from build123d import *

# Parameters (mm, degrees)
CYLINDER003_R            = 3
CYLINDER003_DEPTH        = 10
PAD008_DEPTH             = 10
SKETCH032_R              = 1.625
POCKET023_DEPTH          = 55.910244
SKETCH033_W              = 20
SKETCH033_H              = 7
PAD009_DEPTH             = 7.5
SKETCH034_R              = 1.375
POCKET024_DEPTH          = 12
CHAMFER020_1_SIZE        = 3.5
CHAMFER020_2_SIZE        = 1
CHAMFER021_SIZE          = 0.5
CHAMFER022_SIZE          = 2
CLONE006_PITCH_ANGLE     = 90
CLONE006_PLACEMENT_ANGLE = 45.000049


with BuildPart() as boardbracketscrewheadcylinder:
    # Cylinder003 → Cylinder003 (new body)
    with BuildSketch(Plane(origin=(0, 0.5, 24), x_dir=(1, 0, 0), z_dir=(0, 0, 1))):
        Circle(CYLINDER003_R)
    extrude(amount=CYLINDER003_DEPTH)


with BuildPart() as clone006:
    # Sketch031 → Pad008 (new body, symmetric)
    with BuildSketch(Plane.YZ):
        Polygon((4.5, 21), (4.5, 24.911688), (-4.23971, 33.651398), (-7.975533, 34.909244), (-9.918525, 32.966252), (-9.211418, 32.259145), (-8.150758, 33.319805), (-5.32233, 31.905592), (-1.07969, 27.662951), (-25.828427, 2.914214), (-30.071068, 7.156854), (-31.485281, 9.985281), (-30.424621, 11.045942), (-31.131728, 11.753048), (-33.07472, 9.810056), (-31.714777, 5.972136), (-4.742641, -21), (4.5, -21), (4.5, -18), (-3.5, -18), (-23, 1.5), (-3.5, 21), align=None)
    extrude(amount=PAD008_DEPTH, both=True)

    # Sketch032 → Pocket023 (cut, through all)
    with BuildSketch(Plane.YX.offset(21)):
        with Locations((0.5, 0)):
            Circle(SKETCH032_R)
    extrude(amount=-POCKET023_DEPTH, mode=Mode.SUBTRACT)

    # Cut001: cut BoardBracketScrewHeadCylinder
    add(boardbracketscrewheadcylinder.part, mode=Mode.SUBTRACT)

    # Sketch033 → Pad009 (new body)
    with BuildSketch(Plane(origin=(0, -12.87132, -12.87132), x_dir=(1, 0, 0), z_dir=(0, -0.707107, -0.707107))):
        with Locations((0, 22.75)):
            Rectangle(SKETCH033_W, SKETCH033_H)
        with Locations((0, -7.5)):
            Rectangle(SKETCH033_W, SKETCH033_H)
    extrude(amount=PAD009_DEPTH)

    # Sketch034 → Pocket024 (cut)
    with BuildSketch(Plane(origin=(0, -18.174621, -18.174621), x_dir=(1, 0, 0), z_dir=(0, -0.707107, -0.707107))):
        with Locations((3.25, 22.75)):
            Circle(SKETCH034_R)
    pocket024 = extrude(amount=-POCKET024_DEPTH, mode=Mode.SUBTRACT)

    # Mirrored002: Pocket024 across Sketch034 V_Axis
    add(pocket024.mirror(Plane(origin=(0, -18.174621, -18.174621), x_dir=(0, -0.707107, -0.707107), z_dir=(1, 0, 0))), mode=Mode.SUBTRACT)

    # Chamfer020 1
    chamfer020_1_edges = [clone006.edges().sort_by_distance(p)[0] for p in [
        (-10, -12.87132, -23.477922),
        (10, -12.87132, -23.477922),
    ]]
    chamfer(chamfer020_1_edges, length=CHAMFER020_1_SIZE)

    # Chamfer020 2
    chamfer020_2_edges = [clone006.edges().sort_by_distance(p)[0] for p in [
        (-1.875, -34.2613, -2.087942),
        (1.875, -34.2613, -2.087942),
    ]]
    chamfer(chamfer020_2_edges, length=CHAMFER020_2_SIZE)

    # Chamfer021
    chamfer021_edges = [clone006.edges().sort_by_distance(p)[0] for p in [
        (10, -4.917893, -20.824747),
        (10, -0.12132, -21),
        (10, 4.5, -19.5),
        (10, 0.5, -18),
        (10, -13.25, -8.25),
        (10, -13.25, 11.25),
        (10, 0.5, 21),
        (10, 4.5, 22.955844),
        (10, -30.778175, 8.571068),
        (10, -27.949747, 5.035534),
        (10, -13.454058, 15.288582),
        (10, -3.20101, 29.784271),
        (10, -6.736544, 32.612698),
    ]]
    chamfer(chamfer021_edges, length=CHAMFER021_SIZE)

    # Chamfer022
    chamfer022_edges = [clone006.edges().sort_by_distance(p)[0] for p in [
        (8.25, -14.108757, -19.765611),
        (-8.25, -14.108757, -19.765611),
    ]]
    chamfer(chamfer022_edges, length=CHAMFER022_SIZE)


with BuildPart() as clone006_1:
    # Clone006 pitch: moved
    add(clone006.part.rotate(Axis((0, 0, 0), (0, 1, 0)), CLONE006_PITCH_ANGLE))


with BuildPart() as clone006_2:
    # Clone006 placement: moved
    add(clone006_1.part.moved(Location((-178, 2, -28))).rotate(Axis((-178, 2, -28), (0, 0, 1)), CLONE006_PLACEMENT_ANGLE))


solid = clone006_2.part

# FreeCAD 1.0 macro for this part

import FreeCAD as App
import Part
import Sketcher
from FreeCAD import Vector


def edges_at(feature, points):
    """Names of the edges that pass closest to the given points."""
    edges = feature.Shape.Edges
    near = lambda p: min(range(len(edges)), key=lambda i: edges[i].distToShape(Part.Vertex(*p))[0])
    return sorted({f"Edge{near(p) + 1}" for p in points})

doc = App.newDocument("Part")
body = doc.addObject("PartDesign::Body", "Body")

# Sketch on XY plane
sketch1 = body.newObject("Sketcher::SketchObject", "Sketch")
sketch1.AttachmentSupport = (doc.getObject("XY_Plane"), [""])
sketch1.MapMode = "FlatFace"
sketch1.AttachmentOffset = App.Placement(Vector(0, 0, 24), App.Rotation())
sketch1.addGeometry(Part.Circle(Vector(0, 0.5, 0), Vector(0, 0, 1), 3), False)
sketch1.addConstraint(Sketcher.Constraint("PointOnObject", 0, 3, -2))
sketch1.addConstraint(Sketcher.Constraint("Diameter", 0, 6.0))
sketch1.addConstraint(Sketcher.Constraint("DistanceY", -1, 1, 0, 3, 0.5))
pad1 = body.newObject("PartDesign::Pad", "Pad")
pad1.Profile = sketch1
pad1.Length = 10
body2 = doc.addObject("PartDesign::Body", "Body001")

# Sketch on YZ plane
sketch2 = body2.newObject("Sketcher::SketchObject", "Sketch001")
sketch2.AttachmentSupport = (doc.getObject("YZ_Plane001"), [""])
sketch2.MapMode = "FlatFace"
sketch2.addGeometry(Part.LineSegment(Vector(4.5, 21, 0), Vector(4.5, 24.9, 0)), False)
sketch2.addGeometry(Part.LineSegment(Vector(4.5, 24.9, 0), Vector(-4.2, 33.7, 0)), False)
sketch2.addGeometry(Part.LineSegment(Vector(-4.2, 33.7, 0), Vector(-8, 34.9, 0)), False)
sketch2.addGeometry(Part.LineSegment(Vector(-8, 34.9, 0), Vector(-9.9, 33, 0)), False)
sketch2.addGeometry(Part.LineSegment(Vector(-9.9, 33, 0), Vector(-9.2, 32.3, 0)), False)
sketch2.addGeometry(Part.LineSegment(Vector(-9.2, 32.3, 0), Vector(-8.2, 33.3, 0)), False)
sketch2.addGeometry(Part.LineSegment(Vector(-8.2, 33.3, 0), Vector(-5.3, 31.9, 0)), False)
sketch2.addGeometry(Part.LineSegment(Vector(-5.3, 31.9, 0), Vector(-1.1, 27.7, 0)), False)
sketch2.addGeometry(Part.LineSegment(Vector(-1.1, 27.7, 0), Vector(-25.8, 2.9, 0)), False)
sketch2.addGeometry(Part.LineSegment(Vector(-25.8, 2.9, 0), Vector(-30.1, 7.2, 0)), False)
sketch2.addGeometry(Part.LineSegment(Vector(-30.1, 7.2, 0), Vector(-31.5, 10, 0)), False)
sketch2.addGeometry(Part.LineSegment(Vector(-31.5, 10, 0), Vector(-30.4, 11, 0)), False)
sketch2.addGeometry(Part.LineSegment(Vector(-30.4, 11, 0), Vector(-31.1, 11.8, 0)), False)
sketch2.addGeometry(Part.LineSegment(Vector(-31.1, 11.8, 0), Vector(-33.1, 9.8, 0)), False)
sketch2.addGeometry(Part.LineSegment(Vector(-33.1, 9.8, 0), Vector(-31.7, 6, 0)), False)
sketch2.addGeometry(Part.LineSegment(Vector(-31.7, 6, 0), Vector(-4.7, -21, 0)), False)
sketch2.addGeometry(Part.LineSegment(Vector(-4.7, -21, 0), Vector(4.5, -21, 0)), False)
sketch2.addGeometry(Part.LineSegment(Vector(4.5, -21, 0), Vector(4.5, -18, 0)), False)
sketch2.addGeometry(Part.LineSegment(Vector(4.5, -18, 0), Vector(-3.5, -18, 0)), False)
sketch2.addGeometry(Part.LineSegment(Vector(-3.5, -18, 0), Vector(-23, 1.5, 0)), False)
sketch2.addGeometry(Part.LineSegment(Vector(-23, 1.5, 0), Vector(-3.5, 21, 0)), False)
sketch2.addGeometry(Part.LineSegment(Vector(-3.5, 21, 0), Vector(4.5, 21, 0)), False)
sketch2.addConstraint(Sketcher.Constraint("Coincident", 0, 2, 1, 1))
sketch2.addConstraint(Sketcher.Constraint("Coincident", 1, 2, 2, 1))
sketch2.addConstraint(Sketcher.Constraint("Coincident", 2, 2, 3, 1))
sketch2.addConstraint(Sketcher.Constraint("Coincident", 3, 2, 4, 1))
sketch2.addConstraint(Sketcher.Constraint("Coincident", 4, 2, 5, 1))
sketch2.addConstraint(Sketcher.Constraint("Coincident", 5, 2, 6, 1))
sketch2.addConstraint(Sketcher.Constraint("Coincident", 6, 2, 7, 1))
sketch2.addConstraint(Sketcher.Constraint("Coincident", 7, 2, 8, 1))
sketch2.addConstraint(Sketcher.Constraint("Coincident", 8, 2, 9, 1))
sketch2.addConstraint(Sketcher.Constraint("Coincident", 9, 2, 10, 1))
sketch2.addConstraint(Sketcher.Constraint("Coincident", 10, 2, 11, 1))
sketch2.addConstraint(Sketcher.Constraint("Coincident", 11, 2, 12, 1))
sketch2.addConstraint(Sketcher.Constraint("Coincident", 12, 2, 13, 1))
sketch2.addConstraint(Sketcher.Constraint("Coincident", 13, 2, 14, 1))
sketch2.addConstraint(Sketcher.Constraint("Coincident", 14, 2, 15, 1))
sketch2.addConstraint(Sketcher.Constraint("Coincident", 15, 2, 16, 1))
sketch2.addConstraint(Sketcher.Constraint("Coincident", 16, 2, 17, 1))
sketch2.addConstraint(Sketcher.Constraint("Coincident", 17, 2, 18, 1))
sketch2.addConstraint(Sketcher.Constraint("Coincident", 18, 2, 19, 1))
sketch2.addConstraint(Sketcher.Constraint("Coincident", 19, 2, 20, 1))
sketch2.addConstraint(Sketcher.Constraint("Coincident", 20, 2, 21, 1))
sketch2.addConstraint(Sketcher.Constraint("Coincident", 21, 2, 0, 1))
sketch2.addConstraint(Sketcher.Constraint("Vertical", 0))
sketch2.addConstraint(Sketcher.Constraint("Horizontal", 16))
sketch2.addConstraint(Sketcher.Constraint("Vertical", 17))
sketch2.addConstraint(Sketcher.Constraint("Horizontal", 18))
sketch2.addConstraint(Sketcher.Constraint("Horizontal", 21))
sketch2.addConstraint(Sketcher.Constraint("Symmetric", 16, 2, 21, 2, -1))
sketch2.addConstraint(Sketcher.Constraint("Perpendicular", 1, 3))
sketch2.addConstraint(Sketcher.Constraint("Perpendicular", 3, 4))
sketch2.addConstraint(Sketcher.Constraint("Perpendicular", 4, 5))
sketch2.addConstraint(Sketcher.Constraint("Perpendicular", 5, 7))
sketch2.addConstraint(Sketcher.Constraint("Perpendicular", 7, 8))
sketch2.addConstraint(Sketcher.Constraint("Perpendicular", 8, 9))
sketch2.addConstraint(Sketcher.Constraint("Perpendicular", 9, 11))
sketch2.addConstraint(Sketcher.Constraint("Perpendicular", 11, 12))
sketch2.addConstraint(Sketcher.Constraint("Perpendicular", 12, 13))
sketch2.addConstraint(Sketcher.Constraint("Perpendicular", 13, 15))
sketch2.addConstraint(Sketcher.Constraint("Parallel", 15, 19))
sketch2.addConstraint(Sketcher.Constraint("Perpendicular", 19, 20))
sketch2.addConstraint(Sketcher.Constraint("Vertical", 18, 2, 20, 2))
sketch2.addConstraint(Sketcher.Constraint("Equal", 7, 9))
sketch2.addConstraint(Sketcher.Constraint("Equal", 6, 10))
sketch2.addConstraint(Sketcher.Constraint("Equal", 5, 11))
sketch2.addConstraint(Sketcher.Constraint("Equal", 4, 12))
sketch2.addConstraint(Sketcher.Constraint("Equal", 3, 13))
sketch2.addConstraint(Sketcher.Constraint("Equal", 19, 20))
sketch2.addConstraint(Sketcher.Constraint("DistanceX", 18, 2, 18, 1, 8.0))
sketch2.addConstraint(Sketcher.Constraint("DistanceY", 17, 1, 17, 2, 3.0))
sketch2.addConstraint(Sketcher.Constraint("Distance", 4, 1.0))
sketch2.addConstraint(Sketcher.Constraint("Distance", 7, 6.0))
sketch2.addConstraint(Sketcher.Constraint("Distance", 8, 35.0))
sketch2.addConstraint(Sketcher.Constraint("DistanceY", 15, 2, -1, 1, 21.0))
sketch2.addConstraint(Sketcher.Constraint("DistanceX", 19, 2, -1, 1, 23.0))
sketch2.addConstraint(Sketcher.Constraint("Distance", 5, 1.5))
sketch2.addConstraint(Sketcher.Constraint("DistanceX", 16, 1, 16, 2, 9.242641))
sketch2.addConstraint(Sketcher.Constraint("DistanceY", 0, 1, 0, 2, 3.911688))
sketch2.addConstraint(Sketcher.Constraint("DistanceY", 4, 2, 2, 2, 2.650099))
sketch2.addConstraint(Sketcher.Constraint("DistanceX", 12, 2, 8, 2, 5.303301))
sketch2.addConstraint(Sketcher.Constraint("DistanceY", 9, 2, 13, 2, 2.653202))
sketch2.addConstraint(Sketcher.Constraint("Distance", 14, 4.071741))
sketch2.addConstraint(Sketcher.Constraint("Distance", 15, 38.144361))
sketch2.addConstraint(Sketcher.Constraint("DistanceX", 1, 2, -1, 1, 4.23971))
sketch2.addConstraint(Sketcher.Constraint("DistanceY", -1, 1, 3, 2, 32.966252))
sketch2.addConstraint(Sketcher.Constraint("DistanceX", 6, 2, -1, 1, 5.32233))
pad2 = body2.newObject("PartDesign::Pad", "Pad001")
pad2.Profile = sketch2
pad2.Length = 20
pad2.Midplane = True

# Sketch on XY plane
sketch3 = body2.newObject("Sketcher::SketchObject", "Sketch002")
sketch3.AttachmentSupport = (doc.getObject("XY_Plane001"), [""])
sketch3.MapMode = "FlatFace"
sketch3.AttachmentOffset = App.Placement(Vector(0, 0, -21), App.Rotation())
sketch3.addGeometry(Part.Circle(Vector(0, 0.5, 0), Vector(0, 0, 1), 1.6), False)
sketch3.addConstraint(Sketcher.Constraint("PointOnObject", 0, 3, -2))
sketch3.addConstraint(Sketcher.Constraint("Diameter", 0, 3.25))
sketch3.addConstraint(Sketcher.Constraint("DistanceY", -1, 1, 0, 3, 0.5))
pocket1 = body2.newObject("PartDesign::Pocket", "Pocket")
pocket1.Profile = sketch3
pocket1.Type = "ThroughAll"
pocket1.Reversed = True
doc.recompute()

boolean = body2.newObject("PartDesign::Boolean", "Boolean")
boolean.Type = "Cut"
boolean.addObjects([body])

# Sketch on an angled plane
sketch4 = body2.newObject("Sketcher::SketchObject", "Sketch003")
sketch4.Placement = App.Placement(Vector(0, -12.87132, -12.87132), App.Rotation(Vector(1, 0, 0), Vector(0, -0.707106781, 0.707106781), Vector(0, -0.707106781, -0.707106781), "ZXY"))
sketch4.addGeometry(Part.LineSegment(Vector(-10, 26, 0), Vector(-10, 19, 0)), False)
sketch4.addGeometry(Part.LineSegment(Vector(-10, 19, 0), Vector(10, 19, 0)), False)
sketch4.addGeometry(Part.LineSegment(Vector(10, 19, 0), Vector(10, 26, 0)), False)
sketch4.addGeometry(Part.LineSegment(Vector(10, 26, 0), Vector(-10, 26, 0)), False)
sketch4.addGeometry(Part.LineSegment(Vector(-10, -4, 0), Vector(-10, -11, 0)), False)
sketch4.addGeometry(Part.LineSegment(Vector(-10, -11, 0), Vector(10, -11, 0)), False)
sketch4.addGeometry(Part.LineSegment(Vector(10, -11, 0), Vector(10, -4, 0)), False)
sketch4.addGeometry(Part.LineSegment(Vector(10, -4, 0), Vector(-10, -4, 0)), False)
sketch4.addConstraint(Sketcher.Constraint("Coincident", 0, 2, 1, 1))
sketch4.addConstraint(Sketcher.Constraint("Coincident", 1, 2, 2, 1))
sketch4.addConstraint(Sketcher.Constraint("Coincident", 2, 2, 3, 1))
sketch4.addConstraint(Sketcher.Constraint("Coincident", 3, 2, 0, 1))
sketch4.addConstraint(Sketcher.Constraint("Coincident", 4, 2, 5, 1))
sketch4.addConstraint(Sketcher.Constraint("Coincident", 5, 2, 6, 1))
sketch4.addConstraint(Sketcher.Constraint("Coincident", 6, 2, 7, 1))
sketch4.addConstraint(Sketcher.Constraint("Coincident", 7, 2, 4, 1))
sketch4.addConstraint(Sketcher.Constraint("Vertical", 0))
sketch4.addConstraint(Sketcher.Constraint("Horizontal", 1))
sketch4.addConstraint(Sketcher.Constraint("Vertical", 2))
sketch4.addConstraint(Sketcher.Constraint("Horizontal", 3))
sketch4.addConstraint(Sketcher.Constraint("Vertical", 4))
sketch4.addConstraint(Sketcher.Constraint("Horizontal", 5))
sketch4.addConstraint(Sketcher.Constraint("Vertical", 6))
sketch4.addConstraint(Sketcher.Constraint("Horizontal", 7))
sketch4.addConstraint(Sketcher.Constraint("Vertical", 3, 2, 4, 2))
sketch4.addConstraint(Sketcher.Constraint("Vertical", 2, 2, 5, 2))
sketch4.addConstraint(Sketcher.Constraint("Equal", 2, 4))
sketch4.addConstraint(Sketcher.Constraint("DistanceX", 1, 1, 1, 2, 20.0))
sketch4.addConstraint(Sketcher.Constraint("DistanceY", 0, 2, 0, 1, 7.0))
sketch4.addConstraint(Sketcher.Constraint("DistanceX", 0, 2, -1, 1, 10.0))
sketch4.addConstraint(Sketcher.Constraint("DistanceY", 4, 2, -1, 1, 11.0))
sketch4.addConstraint(Sketcher.Constraint("DistanceY", -1, 1, 0, 2, 19.25))
pad3 = body2.newObject("PartDesign::Pad", "Pad002")
pad3.Profile = sketch4
pad3.Length = 7.5

# Sketch on an angled plane
sketch5 = body2.newObject("Sketcher::SketchObject", "Sketch004")
sketch5.Placement = App.Placement(Vector(0, -18.174621, -18.174621), App.Rotation(Vector(1, 0, 0), Vector(0, -0.707106781, 0.707106781), Vector(0, -0.707106781, -0.707106781), "ZXY"))
sketch5.addGeometry(Part.Circle(Vector(3.2, 22.7, 0), Vector(0, 0, 1), 1.4), False)
sketch5.addConstraint(Sketcher.Constraint("Diameter", 0, 2.75))
sketch5.addConstraint(Sketcher.Constraint("DistanceX", -1, 1, 0, 3, 3.25))
sketch5.addConstraint(Sketcher.Constraint("DistanceY", -1, 1, 0, 3, 22.75))
pocket2 = body2.newObject("PartDesign::Pocket", "Pocket001")
pocket2.Profile = sketch5
pocket2.Length = 12
doc.recompute()

mirrored = body2.newObject("PartDesign::Mirrored", "Mirrored")
mirrored.Originals = [pocket2]
mirrored.MirrorPlane = (doc.getObject("YZ_Plane001"), [""])
body2.Tip = mirrored
doc.recompute()

chamfer = body2.newObject("PartDesign::Chamfer", "Chamfer")
chamfer.Base = (mirrored, edges_at(mirrored, [(-10, -12.871, -23.478), (10, -12.871, -23.478)]))
chamfer.Size = 3.5
doc.recompute()

chamfer2 = body2.newObject("PartDesign::Chamfer", "Chamfer001")
chamfer2.Base = (chamfer, edges_at(chamfer, [(-1.875, -34.261, -2.088), (1.875, -34.261, -2.088)]))
chamfer2.Size = 1
doc.recompute()

chamfer3 = body2.newObject("PartDesign::Chamfer", "Chamfer002")
chamfer3.Base = (chamfer2, edges_at(chamfer2, [
    (10, -4.918, -20.825),
    (10, -0.121, -21),
    (10, 4.5, -19.5),
    (10, 0.5, -18),
    (10, -13.25, -8.25),
    (10, -13.25, 11.25),
    (10, 0.5, 21),
    (10, 4.5, 22.956),
    (10, -30.778, 8.571),
    (10, -27.95, 5.036),
    (10, -13.454, 15.289),
    (10, -3.201, 29.784),
    (10, -6.737, 32.613),
]))
chamfer3.Size = 0.5
doc.recompute()

chamfer4 = body2.newObject("PartDesign::Chamfer", "Chamfer003")
chamfer4.Base = (chamfer3, edges_at(chamfer3, [(8.25, -14.109, -19.766), (-8.25, -14.109, -19.766)]))
chamfer4.Size = 2
body3 = doc.addObject("PartDesign::Body", "Body002")
doc.recompute()

body2.Placement = App.Placement(Vector(0, 0, 0), App.Rotation(Vector(0, 1, 0), 90))
boolean2 = body3.newObject("PartDesign::Boolean", "Boolean001")
boolean2.Type = "Fuse"
boolean2.addObjects([body2])
body4 = doc.addObject("PartDesign::Body", "Body003")
doc.recompute()

body3.Placement = App.Placement(Vector(-178, 2, -28), App.Rotation(Vector(0, 0, 1), 45.000049))
boolean3 = body4.newObject("PartDesign::Boolean", "Boolean002")
boolean3.Type = "Fuse"
boolean3.addObjects([body3])

doc.recompute()
